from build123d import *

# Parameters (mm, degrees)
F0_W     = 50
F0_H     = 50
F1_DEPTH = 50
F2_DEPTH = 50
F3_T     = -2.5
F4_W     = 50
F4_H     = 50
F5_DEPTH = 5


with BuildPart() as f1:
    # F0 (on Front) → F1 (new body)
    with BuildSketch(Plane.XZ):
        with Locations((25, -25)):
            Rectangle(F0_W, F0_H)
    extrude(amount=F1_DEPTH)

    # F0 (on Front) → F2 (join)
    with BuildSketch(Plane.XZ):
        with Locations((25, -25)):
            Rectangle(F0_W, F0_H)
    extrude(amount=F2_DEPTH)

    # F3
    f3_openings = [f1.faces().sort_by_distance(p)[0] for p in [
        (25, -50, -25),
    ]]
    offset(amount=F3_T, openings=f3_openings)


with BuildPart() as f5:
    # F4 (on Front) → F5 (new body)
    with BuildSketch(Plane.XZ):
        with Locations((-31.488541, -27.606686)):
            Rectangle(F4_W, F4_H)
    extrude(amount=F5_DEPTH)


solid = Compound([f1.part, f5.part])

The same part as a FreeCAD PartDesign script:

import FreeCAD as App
import Part
import Sketcher

V = App.Vector
Q = App.Units.Quantity


def faces_at(feature, points):
    """Names of the faces that lie closest to the given points."""
    faces = feature.Shape.Faces
    near = lambda p: min(range(len(faces)), key=lambda i: faces[i].distToShape(Part.Vertex(*p))[0])
    return sorted({f"Face{near(p) + 1}" for p in points})

doc = App.newDocument("Part")
body = doc.addObject("PartDesign::Body", "Body")

# Sketch on XZ plane
sketch1 = body.newObject("Sketcher::SketchObject", "Sketch")
sketch1.AttachmentSupport = (doc.getObject("XZ_Plane"), [""])
sketch1.MapMode = "FlatFace"
sketch1.addGeometry([
    Part.LineSegment(V(0, 0, 0), V(0, -50, 0)),
    Part.LineSegment(V(0, -50, 0), V(50, -50, 0)),
    Part.LineSegment(V(50, -50, 0), V(50, 0, 0)),
    Part.LineSegment(V(50, 0, 0), V(0, 0, 0)),
], False)
sketch1.addConstraint([
    Sketcher.Constraint("Coincident", 0, 2, 1, 1),
    Sketcher.Constraint("Coincident", 1, 2, 2, 1),
    Sketcher.Constraint("Coincident", 2, 2, 3, 1),
    Sketcher.Constraint("Coincident", 3, 2, 0, 1),
    Sketcher.Constraint("Vertical", 0),
    Sketcher.Constraint("Horizontal", 1),
    Sketcher.Constraint("Vertical", 2),
    Sketcher.Constraint("Horizontal", 3),
    Sketcher.Constraint("Coincident", 3, 2, -1, 1),
    Sketcher.Constraint("Equal", 3, 0),
    Sketcher.Constraint("DistanceX", 1, 1, 1, 2, Q("50 mm")),
])
pad1 = body.newObject("PartDesign::Pad", "Pad")
pad1.Profile = sketch1
pad1.Length = 50

# Sketch on XZ plane
sketch2 = body.newObject("Sketcher::SketchObject", "Sketch001")
sketch2.AttachmentSupport = (doc.getObject("XZ_Plane"), [""])
sketch2.MapMode = "FlatFace"
sketch2.addGeometry([
    Part.LineSegment(V(0, 0, 0), V(0, -50, 0)),
    Part.LineSegment(V(0, -50, 0), V(50, -50, 0)),
    Part.LineSegment(V(50, -50, 0), V(50, 0, 0)),
    Part.LineSegment(V(50, 0, 0), V(0, 0, 0)),
], False)
sketch2.addConstraint([
    Sketcher.Constraint("Coincident", 0, 2, 1, 1),
    Sketcher.Constraint("Coincident", 1, 2, 2, 1),
    Sketcher.Constraint("Coincident", 2, 2, 3, 1),
    Sketcher.Constraint("Coincident", 3, 2, 0, 1),
    Sketcher.Constraint("Vertical", 0),
    Sketcher.Constraint("Horizontal", 1),
    Sketcher.Constraint("Vertical", 2),
    Sketcher.Constraint("Horizontal", 3),
    Sketcher.Constraint("Coincident", 3, 2, -1, 1),
    Sketcher.Constraint("Equal", 3, 0),
    Sketcher.Constraint("DistanceX", 1, 1, 1, 2, Q("50 mm")),
])
pad2 = body.newObject("PartDesign::Pad", "Pad001")
pad2.Profile = sketch2
pad2.Length = 50
doc.recompute()

thickness = body.newObject("PartDesign::Thickness", "Thickness")
thickness.Base = (pad2, faces_at(pad2, [(25, -50, -25)]))
thickness.Value = 2.5
thickness.Reversed = True
thickness.Join = "Arc"
body2 = doc.addObject("PartDesign::Body", "Body001")

# Sketch on XZ plane
sketch3 = body2.newObject("Sketcher::SketchObject", "Sketch002")
sketch3.AttachmentSupport = (doc.getObject("XZ_Plane001"), [""])
sketch3.MapMode = "FlatFace"
sketch3.addGeometry([
    Part.LineSegment(V(-56.488541, -2.606686, 0), V(-56.488541, -52.606686, 0)),
    Part.LineSegment(V(-56.488541, -52.606686, 0), V(-6.488541, -52.606686, 0)),
    Part.LineSegment(V(-6.488541, -52.606686, 0), V(-6.488541, -2.606686, 0)),
    Part.LineSegment(V(-6.488541, -2.606686, 0), V(-56.488541, -2.606686, 0)),
], False)
sketch3.addConstraint([
    Sketcher.Constraint("Coincident", 0, 2, 1, 1),
    Sketcher.Constraint("Coincident", 1, 2, 2, 1),
    Sketcher.Constraint("Coincident", 2, 2, 3, 1),
    Sketcher.Constraint("Coincident", 3, 2, 0, 1),
    Sketcher.Constraint("Vertical", 0),
    Sketcher.Constraint("Horizontal", 1),
    Sketcher.Constraint("Vertical", 2),
    Sketcher.Constraint("Horizontal", 3),
    Sketcher.Constraint("Equal", 3, 0),
    Sketcher.Constraint("DistanceX", 1, 1, 1, 2, Q("50 mm")),
    Sketcher.Constraint("DistanceX", 0, 2, -1, 1, Q("56.488541 mm")),
    Sketcher.Constraint("DistanceY", 0, 2, -1, 1, Q("52.606686 mm")),
])
pad3 = body2.newObject("PartDesign::Pad", "Pad002")
pad3.Profile = sketch3
pad3.Length = 5

doc.recompute()
